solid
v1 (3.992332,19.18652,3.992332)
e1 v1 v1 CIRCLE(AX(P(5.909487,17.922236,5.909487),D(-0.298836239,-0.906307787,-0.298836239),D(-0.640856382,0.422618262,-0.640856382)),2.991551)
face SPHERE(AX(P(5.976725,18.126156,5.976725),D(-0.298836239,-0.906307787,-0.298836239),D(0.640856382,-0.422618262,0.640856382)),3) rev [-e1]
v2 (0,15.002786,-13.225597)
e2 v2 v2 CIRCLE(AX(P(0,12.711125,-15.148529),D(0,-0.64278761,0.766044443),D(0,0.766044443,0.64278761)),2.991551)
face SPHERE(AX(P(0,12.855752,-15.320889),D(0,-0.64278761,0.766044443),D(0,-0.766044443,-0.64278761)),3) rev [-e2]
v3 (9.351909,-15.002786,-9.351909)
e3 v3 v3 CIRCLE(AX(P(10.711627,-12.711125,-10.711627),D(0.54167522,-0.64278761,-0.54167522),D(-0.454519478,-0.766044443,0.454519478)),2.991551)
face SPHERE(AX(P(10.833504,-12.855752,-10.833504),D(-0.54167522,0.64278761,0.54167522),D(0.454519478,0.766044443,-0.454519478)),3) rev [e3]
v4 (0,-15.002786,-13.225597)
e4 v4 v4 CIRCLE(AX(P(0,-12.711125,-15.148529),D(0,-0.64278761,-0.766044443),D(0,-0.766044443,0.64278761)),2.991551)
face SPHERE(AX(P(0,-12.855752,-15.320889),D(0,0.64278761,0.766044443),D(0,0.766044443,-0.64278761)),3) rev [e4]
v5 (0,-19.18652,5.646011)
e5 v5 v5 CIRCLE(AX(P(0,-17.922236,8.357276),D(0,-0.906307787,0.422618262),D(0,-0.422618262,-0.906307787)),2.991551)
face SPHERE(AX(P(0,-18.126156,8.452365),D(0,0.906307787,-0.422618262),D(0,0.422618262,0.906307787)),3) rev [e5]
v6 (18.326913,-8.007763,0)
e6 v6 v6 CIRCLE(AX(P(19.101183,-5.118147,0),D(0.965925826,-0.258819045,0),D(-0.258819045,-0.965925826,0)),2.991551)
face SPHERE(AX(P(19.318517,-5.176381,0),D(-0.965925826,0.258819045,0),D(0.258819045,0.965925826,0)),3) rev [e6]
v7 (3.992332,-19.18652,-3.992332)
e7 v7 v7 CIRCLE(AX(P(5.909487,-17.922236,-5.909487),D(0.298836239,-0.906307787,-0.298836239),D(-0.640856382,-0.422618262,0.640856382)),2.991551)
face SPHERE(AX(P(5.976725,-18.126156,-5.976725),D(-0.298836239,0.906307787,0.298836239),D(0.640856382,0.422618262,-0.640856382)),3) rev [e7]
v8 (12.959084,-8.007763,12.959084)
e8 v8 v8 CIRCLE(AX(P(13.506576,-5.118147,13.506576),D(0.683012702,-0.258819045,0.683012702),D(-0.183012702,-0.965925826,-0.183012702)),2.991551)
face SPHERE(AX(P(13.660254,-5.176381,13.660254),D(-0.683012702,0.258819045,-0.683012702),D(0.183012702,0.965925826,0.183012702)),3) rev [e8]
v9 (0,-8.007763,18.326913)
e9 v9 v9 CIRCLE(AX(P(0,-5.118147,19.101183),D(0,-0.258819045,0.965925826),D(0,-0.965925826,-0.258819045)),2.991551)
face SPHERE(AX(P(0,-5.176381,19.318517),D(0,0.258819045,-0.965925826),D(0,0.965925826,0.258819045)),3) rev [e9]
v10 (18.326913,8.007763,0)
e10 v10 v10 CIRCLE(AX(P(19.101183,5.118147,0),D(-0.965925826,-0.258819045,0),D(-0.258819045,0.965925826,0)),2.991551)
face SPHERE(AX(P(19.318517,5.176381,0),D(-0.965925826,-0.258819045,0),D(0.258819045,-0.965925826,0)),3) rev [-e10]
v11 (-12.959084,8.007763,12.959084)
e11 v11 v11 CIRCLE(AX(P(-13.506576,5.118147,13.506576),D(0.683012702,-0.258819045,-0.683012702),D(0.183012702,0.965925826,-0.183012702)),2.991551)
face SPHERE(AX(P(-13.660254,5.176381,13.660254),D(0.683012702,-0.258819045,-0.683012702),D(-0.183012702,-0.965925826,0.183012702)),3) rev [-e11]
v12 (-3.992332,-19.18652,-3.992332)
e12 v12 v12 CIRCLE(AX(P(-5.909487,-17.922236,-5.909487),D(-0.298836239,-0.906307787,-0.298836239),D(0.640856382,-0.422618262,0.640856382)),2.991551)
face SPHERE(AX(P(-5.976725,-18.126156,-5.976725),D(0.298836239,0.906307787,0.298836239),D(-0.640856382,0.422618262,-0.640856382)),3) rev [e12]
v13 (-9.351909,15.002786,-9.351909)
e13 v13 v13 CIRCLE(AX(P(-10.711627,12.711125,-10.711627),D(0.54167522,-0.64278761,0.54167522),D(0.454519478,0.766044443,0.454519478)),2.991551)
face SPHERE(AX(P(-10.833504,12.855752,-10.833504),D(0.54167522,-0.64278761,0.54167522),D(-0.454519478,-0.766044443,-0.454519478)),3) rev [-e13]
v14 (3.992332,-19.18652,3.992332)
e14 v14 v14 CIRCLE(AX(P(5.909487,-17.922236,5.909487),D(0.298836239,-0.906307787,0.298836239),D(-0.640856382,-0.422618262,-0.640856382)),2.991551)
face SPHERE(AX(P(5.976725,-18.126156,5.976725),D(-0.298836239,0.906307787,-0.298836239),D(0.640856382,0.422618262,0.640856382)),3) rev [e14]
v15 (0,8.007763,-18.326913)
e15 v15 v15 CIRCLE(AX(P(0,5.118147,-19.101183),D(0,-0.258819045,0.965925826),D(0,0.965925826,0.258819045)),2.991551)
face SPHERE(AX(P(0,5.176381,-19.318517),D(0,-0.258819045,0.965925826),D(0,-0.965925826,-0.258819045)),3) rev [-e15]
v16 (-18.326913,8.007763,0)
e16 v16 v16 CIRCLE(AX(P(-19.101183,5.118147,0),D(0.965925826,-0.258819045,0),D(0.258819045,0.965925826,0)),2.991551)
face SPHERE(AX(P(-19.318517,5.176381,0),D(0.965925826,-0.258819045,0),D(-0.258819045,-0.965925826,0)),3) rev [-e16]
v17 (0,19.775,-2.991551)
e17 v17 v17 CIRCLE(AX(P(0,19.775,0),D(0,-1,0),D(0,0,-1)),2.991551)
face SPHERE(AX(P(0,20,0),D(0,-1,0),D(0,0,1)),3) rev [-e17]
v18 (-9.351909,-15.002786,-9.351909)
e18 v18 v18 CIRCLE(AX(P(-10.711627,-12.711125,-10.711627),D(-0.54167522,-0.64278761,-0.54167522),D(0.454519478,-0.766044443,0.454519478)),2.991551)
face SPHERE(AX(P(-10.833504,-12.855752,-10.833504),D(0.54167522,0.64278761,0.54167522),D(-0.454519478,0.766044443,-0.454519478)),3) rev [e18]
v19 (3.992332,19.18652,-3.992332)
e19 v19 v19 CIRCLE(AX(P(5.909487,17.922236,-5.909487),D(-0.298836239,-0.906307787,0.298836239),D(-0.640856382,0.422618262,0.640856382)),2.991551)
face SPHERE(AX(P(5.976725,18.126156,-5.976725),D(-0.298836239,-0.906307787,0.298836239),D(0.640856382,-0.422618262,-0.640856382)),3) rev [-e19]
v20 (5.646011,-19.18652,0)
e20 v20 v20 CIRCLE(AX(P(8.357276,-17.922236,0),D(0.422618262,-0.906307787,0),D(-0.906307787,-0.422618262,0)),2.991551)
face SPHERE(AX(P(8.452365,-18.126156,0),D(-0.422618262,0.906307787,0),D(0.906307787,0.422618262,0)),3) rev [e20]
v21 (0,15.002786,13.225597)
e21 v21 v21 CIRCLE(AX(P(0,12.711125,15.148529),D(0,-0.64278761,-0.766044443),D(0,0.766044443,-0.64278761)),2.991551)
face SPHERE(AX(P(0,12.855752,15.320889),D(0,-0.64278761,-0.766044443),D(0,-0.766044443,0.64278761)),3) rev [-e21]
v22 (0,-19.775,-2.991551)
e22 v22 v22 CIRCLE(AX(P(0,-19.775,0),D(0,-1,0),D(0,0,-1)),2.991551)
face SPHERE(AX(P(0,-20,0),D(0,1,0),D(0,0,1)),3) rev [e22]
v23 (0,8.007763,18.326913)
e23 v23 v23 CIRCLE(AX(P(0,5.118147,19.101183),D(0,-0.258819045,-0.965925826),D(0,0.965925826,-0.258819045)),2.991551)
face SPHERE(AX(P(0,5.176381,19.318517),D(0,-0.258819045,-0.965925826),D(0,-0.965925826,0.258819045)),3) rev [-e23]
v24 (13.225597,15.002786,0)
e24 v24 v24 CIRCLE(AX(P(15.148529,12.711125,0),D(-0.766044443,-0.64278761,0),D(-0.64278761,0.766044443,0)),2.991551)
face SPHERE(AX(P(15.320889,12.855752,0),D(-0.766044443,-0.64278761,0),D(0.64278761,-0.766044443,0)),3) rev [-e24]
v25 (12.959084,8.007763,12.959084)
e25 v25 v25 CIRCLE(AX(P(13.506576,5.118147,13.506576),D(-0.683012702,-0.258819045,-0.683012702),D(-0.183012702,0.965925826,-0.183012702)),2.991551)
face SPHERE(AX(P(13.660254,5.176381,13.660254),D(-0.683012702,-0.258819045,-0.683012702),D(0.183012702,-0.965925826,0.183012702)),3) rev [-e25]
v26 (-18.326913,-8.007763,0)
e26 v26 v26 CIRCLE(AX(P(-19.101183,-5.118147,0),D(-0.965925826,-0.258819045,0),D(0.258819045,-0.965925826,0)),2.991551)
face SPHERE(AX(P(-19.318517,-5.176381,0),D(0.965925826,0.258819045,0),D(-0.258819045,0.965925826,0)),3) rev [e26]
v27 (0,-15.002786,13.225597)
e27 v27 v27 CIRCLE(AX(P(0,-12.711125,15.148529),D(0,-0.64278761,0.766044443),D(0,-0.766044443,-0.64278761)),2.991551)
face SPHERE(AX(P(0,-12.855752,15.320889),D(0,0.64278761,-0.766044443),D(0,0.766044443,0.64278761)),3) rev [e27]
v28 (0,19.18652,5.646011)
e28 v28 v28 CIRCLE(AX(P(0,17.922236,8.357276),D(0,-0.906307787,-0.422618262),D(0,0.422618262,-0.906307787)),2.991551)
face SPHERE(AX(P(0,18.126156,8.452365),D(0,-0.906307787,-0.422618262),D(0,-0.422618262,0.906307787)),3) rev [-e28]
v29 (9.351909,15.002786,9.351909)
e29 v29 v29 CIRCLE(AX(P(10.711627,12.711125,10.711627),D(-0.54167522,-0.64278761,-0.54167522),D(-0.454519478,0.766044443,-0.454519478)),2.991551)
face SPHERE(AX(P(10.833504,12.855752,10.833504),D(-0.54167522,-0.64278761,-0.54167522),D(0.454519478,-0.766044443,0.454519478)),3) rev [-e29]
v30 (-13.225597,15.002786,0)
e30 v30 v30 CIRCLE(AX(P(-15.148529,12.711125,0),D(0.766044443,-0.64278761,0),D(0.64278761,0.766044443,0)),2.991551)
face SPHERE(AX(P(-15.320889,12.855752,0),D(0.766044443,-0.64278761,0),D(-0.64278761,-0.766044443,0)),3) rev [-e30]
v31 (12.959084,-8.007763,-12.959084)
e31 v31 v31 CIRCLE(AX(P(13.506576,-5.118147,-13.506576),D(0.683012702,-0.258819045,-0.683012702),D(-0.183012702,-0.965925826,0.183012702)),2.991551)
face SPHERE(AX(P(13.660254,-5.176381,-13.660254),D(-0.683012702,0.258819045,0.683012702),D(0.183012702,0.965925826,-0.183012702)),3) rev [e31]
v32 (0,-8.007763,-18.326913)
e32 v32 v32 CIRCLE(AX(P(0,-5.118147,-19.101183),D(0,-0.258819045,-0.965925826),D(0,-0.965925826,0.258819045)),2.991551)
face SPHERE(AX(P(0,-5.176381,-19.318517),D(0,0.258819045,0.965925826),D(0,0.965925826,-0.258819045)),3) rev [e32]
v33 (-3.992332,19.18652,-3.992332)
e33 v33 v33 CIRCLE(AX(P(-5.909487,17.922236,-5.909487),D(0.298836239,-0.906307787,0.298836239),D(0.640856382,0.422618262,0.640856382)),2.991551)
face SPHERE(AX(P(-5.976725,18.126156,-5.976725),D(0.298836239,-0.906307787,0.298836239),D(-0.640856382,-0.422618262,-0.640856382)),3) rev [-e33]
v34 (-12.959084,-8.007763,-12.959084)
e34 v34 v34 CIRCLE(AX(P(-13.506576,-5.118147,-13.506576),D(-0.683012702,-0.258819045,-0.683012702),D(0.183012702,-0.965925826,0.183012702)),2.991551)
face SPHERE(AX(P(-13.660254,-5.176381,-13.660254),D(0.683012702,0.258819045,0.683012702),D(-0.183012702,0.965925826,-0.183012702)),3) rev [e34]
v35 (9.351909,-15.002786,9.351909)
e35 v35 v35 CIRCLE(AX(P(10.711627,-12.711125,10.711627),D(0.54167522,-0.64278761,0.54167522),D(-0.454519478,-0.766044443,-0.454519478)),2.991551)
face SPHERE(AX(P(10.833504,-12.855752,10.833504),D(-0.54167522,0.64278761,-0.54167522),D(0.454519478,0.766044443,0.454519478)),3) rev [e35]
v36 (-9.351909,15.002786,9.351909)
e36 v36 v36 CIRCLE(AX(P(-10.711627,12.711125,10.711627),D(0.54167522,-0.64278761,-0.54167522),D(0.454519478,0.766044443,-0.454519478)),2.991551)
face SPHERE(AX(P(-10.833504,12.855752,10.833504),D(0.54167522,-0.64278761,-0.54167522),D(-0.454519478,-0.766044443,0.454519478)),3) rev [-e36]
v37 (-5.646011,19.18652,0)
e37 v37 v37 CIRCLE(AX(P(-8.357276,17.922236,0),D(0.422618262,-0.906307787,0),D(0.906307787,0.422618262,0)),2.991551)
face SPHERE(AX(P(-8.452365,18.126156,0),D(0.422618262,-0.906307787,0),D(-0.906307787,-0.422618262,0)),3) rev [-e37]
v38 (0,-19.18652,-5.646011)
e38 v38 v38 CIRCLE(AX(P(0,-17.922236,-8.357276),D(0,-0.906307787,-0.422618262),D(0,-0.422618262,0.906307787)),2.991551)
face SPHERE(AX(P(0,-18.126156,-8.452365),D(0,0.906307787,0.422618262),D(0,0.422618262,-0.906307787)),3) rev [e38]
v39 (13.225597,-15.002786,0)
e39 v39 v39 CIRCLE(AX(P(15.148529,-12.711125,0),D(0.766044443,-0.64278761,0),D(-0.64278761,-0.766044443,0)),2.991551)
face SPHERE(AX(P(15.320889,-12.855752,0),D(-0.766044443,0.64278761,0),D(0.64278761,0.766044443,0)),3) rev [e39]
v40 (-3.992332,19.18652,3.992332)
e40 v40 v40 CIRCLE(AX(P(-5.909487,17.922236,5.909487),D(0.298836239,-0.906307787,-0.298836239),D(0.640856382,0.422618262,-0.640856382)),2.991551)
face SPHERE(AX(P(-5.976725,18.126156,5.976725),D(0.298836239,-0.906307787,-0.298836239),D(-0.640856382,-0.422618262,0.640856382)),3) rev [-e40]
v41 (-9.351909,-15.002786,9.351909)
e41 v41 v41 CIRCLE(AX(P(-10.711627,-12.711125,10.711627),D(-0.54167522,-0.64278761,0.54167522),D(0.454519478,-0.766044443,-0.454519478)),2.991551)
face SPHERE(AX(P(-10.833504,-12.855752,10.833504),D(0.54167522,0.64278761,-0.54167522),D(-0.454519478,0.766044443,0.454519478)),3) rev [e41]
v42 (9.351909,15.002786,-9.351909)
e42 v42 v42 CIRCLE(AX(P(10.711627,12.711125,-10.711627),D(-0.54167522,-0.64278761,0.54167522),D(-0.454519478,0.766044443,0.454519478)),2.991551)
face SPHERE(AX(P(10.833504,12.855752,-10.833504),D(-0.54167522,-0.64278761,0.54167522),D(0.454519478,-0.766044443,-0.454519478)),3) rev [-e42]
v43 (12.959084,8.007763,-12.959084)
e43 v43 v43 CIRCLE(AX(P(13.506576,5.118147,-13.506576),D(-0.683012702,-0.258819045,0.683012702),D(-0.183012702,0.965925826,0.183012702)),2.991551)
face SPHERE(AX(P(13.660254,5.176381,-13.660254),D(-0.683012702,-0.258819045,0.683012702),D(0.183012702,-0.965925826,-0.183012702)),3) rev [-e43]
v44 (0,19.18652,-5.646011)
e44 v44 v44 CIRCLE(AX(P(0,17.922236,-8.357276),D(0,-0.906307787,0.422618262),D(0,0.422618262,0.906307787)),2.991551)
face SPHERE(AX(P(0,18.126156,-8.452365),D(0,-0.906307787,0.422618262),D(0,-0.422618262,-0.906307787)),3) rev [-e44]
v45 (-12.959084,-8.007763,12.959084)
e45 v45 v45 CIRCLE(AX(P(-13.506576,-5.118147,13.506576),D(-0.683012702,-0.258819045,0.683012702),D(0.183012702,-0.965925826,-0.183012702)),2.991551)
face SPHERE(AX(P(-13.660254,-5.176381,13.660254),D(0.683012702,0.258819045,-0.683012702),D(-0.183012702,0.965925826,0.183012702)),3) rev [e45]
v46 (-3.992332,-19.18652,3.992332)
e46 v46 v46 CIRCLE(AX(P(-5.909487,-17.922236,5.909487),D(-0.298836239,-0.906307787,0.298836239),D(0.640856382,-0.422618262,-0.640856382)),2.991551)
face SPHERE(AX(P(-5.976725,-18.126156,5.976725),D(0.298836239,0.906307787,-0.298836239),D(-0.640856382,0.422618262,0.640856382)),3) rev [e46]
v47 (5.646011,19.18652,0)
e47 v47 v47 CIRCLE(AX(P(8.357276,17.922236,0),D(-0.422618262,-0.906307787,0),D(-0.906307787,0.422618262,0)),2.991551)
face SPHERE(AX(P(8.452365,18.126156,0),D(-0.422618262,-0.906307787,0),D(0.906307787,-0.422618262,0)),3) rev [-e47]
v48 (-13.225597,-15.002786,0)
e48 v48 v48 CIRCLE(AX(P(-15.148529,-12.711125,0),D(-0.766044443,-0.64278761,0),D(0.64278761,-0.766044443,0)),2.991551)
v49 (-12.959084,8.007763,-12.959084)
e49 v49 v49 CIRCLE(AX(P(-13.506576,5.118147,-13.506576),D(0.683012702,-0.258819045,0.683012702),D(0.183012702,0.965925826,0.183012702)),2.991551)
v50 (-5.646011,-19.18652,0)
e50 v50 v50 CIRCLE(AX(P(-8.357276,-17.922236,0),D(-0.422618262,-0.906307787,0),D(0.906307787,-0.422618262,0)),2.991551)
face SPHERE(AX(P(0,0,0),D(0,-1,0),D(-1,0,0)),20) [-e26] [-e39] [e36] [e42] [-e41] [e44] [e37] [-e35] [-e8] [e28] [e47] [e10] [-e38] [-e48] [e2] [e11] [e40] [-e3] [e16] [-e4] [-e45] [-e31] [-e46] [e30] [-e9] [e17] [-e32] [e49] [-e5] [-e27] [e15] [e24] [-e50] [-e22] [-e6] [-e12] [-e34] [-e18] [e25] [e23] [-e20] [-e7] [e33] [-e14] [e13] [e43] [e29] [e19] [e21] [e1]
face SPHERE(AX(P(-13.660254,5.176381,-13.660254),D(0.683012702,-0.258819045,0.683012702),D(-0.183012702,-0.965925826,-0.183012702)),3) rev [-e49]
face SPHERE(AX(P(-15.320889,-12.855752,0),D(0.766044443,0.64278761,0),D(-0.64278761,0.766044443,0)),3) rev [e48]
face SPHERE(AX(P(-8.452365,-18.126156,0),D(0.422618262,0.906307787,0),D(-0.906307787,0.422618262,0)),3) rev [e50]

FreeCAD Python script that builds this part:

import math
import FreeCAD as App
import Part
import Sketcher

V = App.Vector
Q = App.Units.Quantity

doc = App.newDocument("Part")
body = doc.addObject("PartDesign::Body", "Body")

# Sketch on XY plane
sketch1 = body.newObject("Sketcher::SketchObject", "Sketch")
sketch1.AttachmentSupport = (doc.getObject("XY_Plane"), [""])
sketch1.MapMode = "FlatFace"
sketch1.addGeometry(Part.ArcOfCircle(Part.Circle(V(0, 0, 0), V(0, 0, 1), 20), math.radians(0), math.radians(90)), False)
sketch1.addGeometry(Part.LineSegment(V(0, 20, 0), V(0, 0, 0)), False)
sketch1.addGeometry(Part.LineSegment(V(0, 0, 0), V(20, 0, 0)), False)
sketch1.addConstraint(Sketcher.Constraint("Coincident", 0, 2, 1, 1))
sketch1.addConstraint(Sketcher.Constraint("Coincident", 1, 2, 2, 1))
sketch1.addConstraint(Sketcher.Constraint("Coincident", 2, 2, 0, 1))
sketch1.addConstraint(Sketcher.Constraint("Vertical", 1))
sketch1.addConstraint(Sketcher.Constraint("Horizontal", 2))
sketch1.addConstraint(Sketcher.Constraint("Coincident", 0, 3, -1, 1))
sketch1.addConstraint(Sketcher.Constraint("Coincident", 1, 2, -1, 1))
sketch1.addConstraint(Sketcher.Constraint("Radius", 0, Q("20 mm")))
revolution = body.newObject("PartDesign::Revolution", "Revolution")
revolution.Profile = sketch1
revolution.ReferenceAxis = (sketch1, ["V_Axis"])
revolution.Angle = 360

# Sketch on YZ plane
sketch2 = body.newObject("Sketcher::SketchObject", "Sketch001")
sketch2.AttachmentSupport = (doc.getObject("YZ_Plane"), [""])
sketch2.MapMode = "FlatFace"
sketch2.addGeometry(Part.LineSegment(V(17, 0, 0), V(20, 0, 0)), False)
sketch2.addGeometry(Part.ArcOfCircle(Part.Circle(V(0, 0, 0), V(0, 0, 1), 20), math.radians(0), math.radians(8.6)), False)
sketch2.addGeometry(Part.ArcOfCircle(Part.Circle(V(20, 0, 0), V(0, 0, 1), 3), math.radians(94), math.radians(180)), False)
sketch2.addConstraint(Sketcher.Constraint("Coincident", 0, 2, 1, 1))
sketch2.addConstraint(Sketcher.Constraint("Coincident", 1, 2, 2, 1))
sketch2.addConstraint(Sketcher.Constraint("Coincident", 2, 2, 0, 1))
sketch2.addConstraint(Sketcher.Constraint("Horizontal", 0))
sketch2.addConstraint(Sketcher.Constraint("Coincident", 1, 3, -1, 1))
sketch2.addConstraint(Sketcher.Constraint("Coincident", 0, 2, 2, 3))
sketch2.addConstraint(Sketcher.Constraint("PointOnObject", 2, 3, -1))
sketch2.addConstraint(Sketcher.Constraint("Radius", 1, Q("20 mm")))
sketch2.addConstraint(Sketcher.Constraint("Radius", 2, Q("3 mm")))
groove = body.newObject("PartDesign::Groove", "Groove")
groove.Profile = sketch2
groove.ReferenceAxis = (sketch2, ["H_Axis"])
groove.Angle = 360
doc.recompute()

polarpattern = body.newObject("PartDesign::PolarPattern", "PolarPattern")
polarpattern.Originals = [groove]
polarpattern.Axis = (doc.getObject("X_Axis"), [""])
polarpattern.Angle = 75
polarpattern.Occurrences = 4
body.Tip = polarpattern

# Sketch on an angled plane
sketch3 = body.newObject("Sketcher::SketchObject", "Sketch002")
sketch3.Placement = App.Placement(V(0, 0, 0), App.Rotation(V(-0.640856382, 0.422618262, -0.640856382), V(0.298836239, 0.906307787, 0.298836239), V(0.707106781, 0, -0.707106781), "ZXY"))
sketch3.addGeometry(Part.LineSegment(V(0, 17, 0), V(0, 20, 0)), False)
sketch3.addGeometry(Part.ArcOfCircle(Part.Circle(V(0, 0, 0), V(0, 0, 1), 20), math.radians(90), math.radians(98.6)), False)
sketch3.addGeometry(Part.ArcOfCircle(Part.Circle(V(0, 20, 0), V(0, 0, 1), 3), math.radians(-176), math.radians(-90)), False)
sketch3.addConstraint(Sketcher.Constraint("Coincident", 0, 2, 1, 1))
sketch3.addConstraint(Sketcher.Constraint("Coincident", 1, 2, 2, 1))
sketch3.addConstraint(Sketcher.Constraint("Coincident", 2, 2, 0, 1))
sketch3.addConstraint(Sketcher.Constraint("Vertical", 0))
sketch3.addConstraint(Sketcher.Constraint("Coincident", 1, 3, -1, 1))
sketch3.addConstraint(Sketcher.Constraint("Coincident", 0, 2, 2, 3))
sketch3.addConstraint(Sketcher.Constraint("PointOnObject", 2, 3, -2))
sketch3.addConstraint(Sketcher.Constraint("Radius", 1, Q("20 mm")))
sketch3.addConstraint(Sketcher.Constraint("Radius", 2, Q("3 mm")))
groove2 = body.newObject("PartDesign::Groove", "Groove001")
groove2.Profile = sketch3
groove2.ReferenceAxis = (sketch3, ["V_Axis"])
groove2.Angle = 360

# Sketch on XY plane
sketch4 = body.newObject("Sketcher::SketchObject", "Sketch003")
sketch4.AttachmentSupport = (doc.getObject("XY_Plane"), [""])
sketch4.MapMode = "FlatFace"
sketch4.addGeometry(Part.LineSegment(V(7.2, 15.4, 0), V(8.5, 18.1, 0)), False)
sketch4.addGeometry(Part.ArcOfCircle(Part.Circle(V(0, 0, 0), V(0, 0, 1), 20), math.radians(56.4), math.radians(65)), False)
sketch4.addGeometry(Part.ArcOfCircle(Part.Circle(V(8.5, 18.1, 0), V(0, 0, 1), 3), math.radians(-115), math.radians(-29)), False)
sketch4.addGeometry(Part.LineSegment(V(0, 0, 0), V(8.5, 18.1, 0)), True)  # axis
sketch4.addConstraint(Sketcher.Constraint("Coincident", 0, 2, 1, 2))
sketch4.addConstraint(Sketcher.Constraint("Coincident", 1, 1, 2, 2))
sketch4.addConstraint(Sketcher.Constraint("Coincident", 2, 1, 0, 1))
sketch4.addConstraint(Sketcher.Constraint("Coincident", 1, 3, -1, 1))
sketch4.addConstraint(Sketcher.Constraint("Coincident", 3, 1, -1, 1))
sketch4.addConstraint(Sketcher.Constraint("Coincident", 0, 2, 2, 3))
sketch4.addConstraint(Sketcher.Constraint("Coincident", 3, 2, 2, 3))
sketch4.addConstraint(Sketcher.Constraint("Parallel", 0, 3))
sketch4.addConstraint(Sketcher.Constraint("Radius", 1, Q("20 mm")))
sketch4.addConstraint(Sketcher.Constraint("Radius", 2, Q("3 mm")))
sketch4.addConstraint(Sketcher.Constraint("Angle", 0, Q("65 deg")))
groove3 = body.newObject("PartDesign::Groove", "Groove002")
groove3.Profile = sketch4
groove3.ReferenceAxis = (sketch4, ["Axis0"])
groove3.Angle = 360

# Sketch on an angled plane
sketch5 = body.newObject("Sketcher::SketchObject", "Sketch004")
sketch5.Placement = App.Placement(V(0, 0, 0), App.Rotation(V(-0.640856382, 0.422618262, 0.640856382), V(0.298836239, 0.906307787, -0.298836239), V(-0.707106781, 0, -0.707106781), "ZXY"))
sketch5.addGeometry(Part.LineSegment(V(0, 17, 0), V(0, 20, 0)), False)
sketch5.addGeometry(Part.ArcOfCircle(Part.Circle(V(0, 0, 0), V(0, 0, 1), 20), math.radians(90), math.radians(98.6)), False)
sketch5.addGeometry(Part.ArcOfCircle(Part.Circle(V(0, 20, 0), V(0, 0, 1), 3), math.radians(-176), math.radians(-90)), False)
sketch5.addConstraint(Sketcher.Constraint("Coincident", 0, 2, 1, 1))
sketch5.addConstraint(Sketcher.Constraint("Coincident", 1, 2, 2, 1))
sketch5.addConstraint(Sketcher.Constraint("Coincident", 2, 2, 0, 1))
sketch5.addConstraint(Sketcher.Constraint("Vertical", 0))
sketch5.addConstraint(Sketcher.Constraint("Coincident", 1, 3, -1, 1))
sketch5.addConstraint(Sketcher.Constraint("Coincident", 0, 2, 2, 3))
sketch5.addConstraint(Sketcher.Constraint("PointOnObject", 2, 3, -2))
sketch5.addConstraint(Sketcher.Constraint("Radius", 1, Q("20 mm")))
sketch5.addConstraint(Sketcher.Constraint("Radius", 2, Q("3 mm")))
groove4 = body.newObject("PartDesign::Groove", "Groove003")
groove4.Profile = sketch5
groove4.ReferenceAxis = (sketch5, ["V_Axis"])
groove4.Angle = 360

# Sketch on YZ plane
sketch6 = body.newObject("Sketcher::SketchObject", "Sketch005")
sketch6.AttachmentSupport = (doc.getObject("YZ_Plane"), [""])
sketch6.MapMode = "FlatFace"
sketch6.addGeometry(Part.LineSegment(V(15.4, -7.2, 0), V(18.1, -8.5, 0)), False)
sketch6.addGeometry(Part.ArcOfCircle(Part.Circle(V(0, 0, 0), V(0, 0, 1), 20), math.radians(-33.6), math.radians(-25)), False)
sketch6.addGeometry(Part.ArcOfCircle(Part.Circle(V(18.1, -8.5, 0), V(0, 0, 1), 3), math.radians(155), math.radians(241)), False)
sketch6.addGeometry(Part.LineSegment(V(0, 0, 0), V(18.1, -8.5, 0)), True)  # axis
sketch6.addConstraint(Sketcher.Constraint("Coincident", 0, 2, 1, 2))
sketch6.addConstraint(Sketcher.Constraint("Coincident", 1, 1, 2, 2))
sketch6.addConstraint(Sketcher.Constraint("Coincident", 2, 1, 0, 1))
sketch6.addConstraint(Sketcher.Constraint("Coincident", 1, 3, -1, 1))
sketch6.addConstraint(Sketcher.Constraint("Coincident", 3, 1, -1, 1))
sketch6.addConstraint(Sketcher.Constraint("Coincident", 0, 2, 2, 3))
sketch6.addConstraint(Sketcher.Constraint("Coincident", 3, 2, 2, 3))
sketch6.addConstraint(Sketcher.Constraint("Parallel", 0, 3))
sketch6.addConstraint(Sketcher.Constraint("Radius", 1, Q("20 mm")))
sketch6.addConstraint(Sketcher.Constraint("Radius", 2, Q("3 mm")))
sketch6.addConstraint(Sketcher.Constraint("Angle", 0, Q("-25 deg")))
groove5 = body.newObject("PartDesign::Groove", "Groove004")
groove5.Profile = sketch6
groove5.ReferenceAxis = (sketch6, ["Axis0"])
groove5.Angle = 360

# Sketch on an angled plane
sketch7 = body.newObject("Sketcher::SketchObject", "Sketch006")
sketch7.Placement = App.Placement(V(0, 0, 0), App.Rotation(V(0.640856382, 0.422618262, 0.640856382), V(-0.298836239, 0.906307787, -0.298836239), V(-0.707106781, 0, 0.707106781), "ZXY"))
sketch7.addGeometry(Part.LineSegment(V(0, 17, 0), V(0, 20, 0)), False)
sketch7.addGeometry(Part.ArcOfCircle(Part.Circle(V(0, 0, 0), V(0, 0, 1), 20), math.radians(90), math.radians(98.6)), False)
sketch7.addGeometry(Part.ArcOfCircle(Part.Circle(V(0, 20, 0), V(0, 0, 1), 3), math.radians(-176), math.radians(-90)), False)
sketch7.addConstraint(Sketcher.Constraint("Coincident", 0, 2, 1, 1))
sketch7.addConstraint(Sketcher.Constraint("Coincident", 1, 2, 2, 1))
sketch7.addConstraint(Sketcher.Constraint("Coincident", 2, 2, 0, 1))
sketch7.addConstraint(Sketcher.Constraint("Vertical", 0))
sketch7.addConstraint(Sketcher.Constraint("Coincident", 1, 3, -1, 1))
sketch7.addConstraint(Sketcher.Constraint("Coincident", 0, 2, 2, 3))
sketch7.addConstraint(Sketcher.Constraint("PointOnObject", 2, 3, -2))
sketch7.addConstraint(Sketcher.Constraint("Radius", 1, Q("20 mm")))
sketch7.addConstraint(Sketcher.Constraint("Radius", 2, Q("3 mm")))
groove6 = body.newObject("PartDesign::Groove", "Groove005")
groove6.Profile = sketch7
groove6.ReferenceAxis = (sketch7, ["V_Axis"])
groove6.Angle = 360

# Sketch on XY plane
sketch8 = body.newObject("Sketcher::SketchObject", "Sketch007")
sketch8.AttachmentSupport = (doc.getObject("XY_Plane"), [""])
sketch8.MapMode = "FlatFace"
sketch8.addGeometry(Part.LineSegment(V(-7.2, 15.4, 0), V(-8.5, 18.1, 0)), False)
sketch8.addGeometry(Part.ArcOfCircle(Part.Circle(V(0, 0, 0), V(0, 0, 1), 20), math.radians(115), math.radians(123.6)), False)
sketch8.addGeometry(Part.ArcOfCircle(Part.Circle(V(-8.5, 18.1, 0), V(0, 0, 1), 3), math.radians(-151), math.radians(-65)), False)
sketch8.addGeometry(Part.LineSegment(V(0, 0, 0), V(-8.5, 18.1, 0)), True)  # axis
sketch8.addConstraint(Sketcher.Constraint("Coincident", 0, 2, 1, 1))
sketch8.addConstraint(Sketcher.Constraint("Coincident", 1, 2, 2, 1))
sketch8.addConstraint(Sketcher.Constraint("Coincident", 2, 2, 0, 1))
sketch8.addConstraint(Sketcher.Constraint("Coincident", 1, 3, -1, 1))
sketch8.addConstraint(Sketcher.Constraint("Coincident", 3, 1, -1, 1))
sketch8.addConstraint(Sketcher.Constraint("Coincident", 0, 2, 2, 3))
sketch8.addConstraint(Sketcher.Constraint("Coincident", 3, 2, 2, 3))
sketch8.addConstraint(Sketcher.Constraint("Parallel", 0, 3))
sketch8.addConstraint(Sketcher.Constraint("Radius", 1, Q("20 mm")))
sketch8.addConstraint(Sketcher.Constraint("Radius", 2, Q("3 mm")))
sketch8.addConstraint(Sketcher.Constraint("Angle", 0, Q("115 deg")))
groove7 = body.newObject("PartDesign::Groove", "Groove006")
groove7.Profile = sketch8
groove7.ReferenceAxis = (sketch8, ["Axis0"])
groove7.Angle = 360

# Sketch on an angled plane
sketch9 = body.newObject("Sketcher::SketchObject", "Sketch008")
sketch9.Placement = App.Placement(V(0, 0, 0), App.Rotation(V(0.640856382, 0.422618262, -0.640856382), V(-0.298836239, 0.906307787, 0.298836239), V(0.707106781, 0, 0.707106781), "ZXY"))
sketch9.addGeometry(Part.LineSegment(V(0, 17, 0), V(0, 20, 0)), False)
sketch9.addGeometry(Part.ArcOfCircle(Part.Circle(V(0, 0, 0), V(0, 0, 1), 20), math.radians(90), math.radians(98.6)), False)
sketch9.addGeometry(Part.ArcOfCircle(Part.Circle(V(0, 20, 0), V(0, 0, 1), 3), math.radians(-176), math.radians(-90)), False)
sketch9.addConstraint(Sketcher.Constraint("Coincident", 0, 2, 1, 1))
sketch9.addConstraint(Sketcher.Constraint("Coincident", 1, 2, 2, 1))
sketch9.addConstraint(Sketcher.Constraint("Coincident", 2, 2, 0, 1))
sketch9.addConstraint(Sketcher.Constraint("Vertical", 0))
sketch9.addConstraint(Sketcher.Constraint("Coincident", 1, 3, -1, 1))
sketch9.addConstraint(Sketcher.Constraint("Coincident", 0, 2, 2, 3))
sketch9.addConstraint(Sketcher.Constraint("PointOnObject", 2, 3, -2))
sketch9.addConstraint(Sketcher.Constraint("Radius", 1, Q("20 mm")))
sketch9.addConstraint(Sketcher.Constraint("Radius", 2, Q("3 mm")))
groove8 = body.newObject("PartDesign::Groove", "Groove007")
groove8.Profile = sketch9
groove8.ReferenceAxis = (sketch9, ["V_Axis"])
groove8.Angle = 360

# Sketch on an angled plane
sketch10 = body.newObject("Sketcher::SketchObject", "Sketch009")
sketch10.Placement = App.Placement(V(0, 0, 0), App.Rotation(V(-0.454519478, 0.766044443, -0.454519478), V(0.54167522, 0.64278761, 0.54167522), V(0.707106781, 0, -0.707106781), "ZXY"))
sketch10.addGeometry(Part.LineSegment(V(0, 17, 0), V(0, 20, 0)), False)
sketch10.addGeometry(Part.ArcOfCircle(Part.Circle(V(0, 0, 0), V(0, 0, 1), 20), math.radians(90), math.radians(98.6)), False)
sketch10.addGeometry(Part.ArcOfCircle(Part.Circle(V(0, 20, 0), V(0, 0, 1), 3), math.radians(-176), math.radians(-90)), False)
sketch10.addConstraint(Sketcher.Constraint("Coincident", 0, 2, 1, 1))
sketch10.addConstraint(Sketcher.Constraint("Coincident", 1, 2, 2, 1))
sketch10.addConstraint(Sketcher.Constraint("Coincident", 2, 2, 0, 1))
sketch10.addConstraint(Sketcher.Constraint("Vertical", 0))
sketch10.addConstraint(Sketcher.Constraint("Coincident", 1, 3, -1, 1))
sketch10.addConstraint(Sketcher.Constraint("Coincident", 0, 2, 2, 3))
sketch10.addConstraint(Sketcher.Constraint("PointOnObject", 2, 3, -2))
sketch10.addConstraint(Sketcher.Constraint("Radius", 1, Q("20 mm")))
sketch10.addConstraint(Sketcher.Constraint("Radius", 2, Q("3 mm")))
groove9 = body.newObject("PartDesign::Groove", "Groove008")
groove9.Profile = sketch10
groove9.ReferenceAxis = (sketch10, ["V_Axis"])
groove9.Angle = 360

# Sketch on XY plane
sketch11 = body.newObject("Sketcher::SketchObject", "Sketch010")
sketch11.AttachmentSupport = (doc.getObject("XY_Plane"), [""])
sketch11.MapMode = "FlatFace"
sketch11.addGeometry(Part.LineSegment(V(13, 10.9, 0), V(15.3, 12.9, 0)), False)
sketch11.addGeometry(Part.ArcOfCircle(Part.Circle(V(0, 0, 0), V(0, 0, 1), 20), math.radians(31.4), math.radians(40)), False)
sketch11.addGeometry(Part.ArcOfCircle(Part.Circle(V(15.3, 12.9, 0), V(0, 0, 1), 3), math.radians(-140), math.radians(-54)), False)
sketch11.addGeometry(Part.LineSegment(V(0, 0, 0), V(15.3, 12.9, 0)), True)  # axis
sketch11.addConstraint(Sketcher.Constraint("Coincident", 0, 2, 1, 2))
sketch11.addConstraint(Sketcher.Constraint("Coincident", 1, 1, 2, 2))
sketch11.addConstraint(Sketcher.Constraint("Coincident", 2, 1, 0, 1))
sketch11.addConstraint(Sketcher.Constraint("Coincident", 1, 3, -1, 1))
sketch11.addConstraint(Sketcher.Constraint("Coincident", 3, 1, -1, 1))
sketch11.addConstraint(Sketcher.Constraint("Coincident", 0, 2, 2, 3))
sketch11.addConstraint(Sketcher.Constraint("Coincident", 3, 2, 2, 3))
sketch11.addConstraint(Sketcher.Constraint("Parallel", 0, 3))
sketch11.addConstraint(Sketcher.Constraint("Radius", 1, Q("20 mm")))
sketch11.addConstraint(Sketcher.Constraint("Radius", 2, Q("3 mm")))
sketch11.addConstraint(Sketcher.Constraint("Angle", 0, Q("40 deg")))
groove10 = body.newObject("PartDesign::Groove", "Groove009")
groove10.Profile = sketch11
groove10.ReferenceAxis = (sketch11, ["Axis0"])
groove10.Angle = 360

# Sketch on an angled plane
sketch12 = body.newObject("Sketcher::SketchObject", "Sketch011")
sketch12.Placement = App.Placement(V(0, 0, 0), App.Rotation(V(-0.454519478, 0.766044443, 0.454519478), V(0.54167522, 0.64278761, -0.54167522), V(-0.707106781, 0, -0.707106781), "ZXY"))
sketch12.addGeometry(Part.LineSegment(V(0, 17, 0), V(0, 20, 0)), False)
sketch12.addGeometry(Part.ArcOfCircle(Part.Circle(V(0, 0, 0), V(0, 0, 1), 20), math.radians(90), math.radians(98.6)), False)
sketch12.addGeometry(Part.ArcOfCircle(Part.Circle(V(0, 20, 0), V(0, 0, 1), 3), math.radians(-176), math.radians(-90)), False)
sketch12.addConstraint(Sketcher.Constraint("Coincident", 0, 2, 1, 1))
sketch12.addConstraint(Sketcher.Constraint("Coincident", 1, 2, 2, 1))
sketch12.addConstraint(Sketcher.Constraint("Coincident", 2, 2, 0, 1))
sketch12.addConstraint(Sketcher.Constraint("Vertical", 0))
sketch12.addConstraint(Sketcher.Constraint("Coincident", 1, 3, -1, 1))
sketch12.addConstraint(Sketcher.Constraint("Coincident", 0, 2, 2, 3))
sketch12.addConstraint(Sketcher.Constraint("PointOnObject", 2, 3, -2))
sketch12.addConstraint(Sketcher.Constraint("Radius", 1, Q("20 mm")))
sketch12.addConstraint(Sketcher.Constraint("Radius", 2, Q("3 mm")))
groove11 = body.newObject("PartDesign::Groove", "Groove010")
groove11.Profile = sketch12
groove11.ReferenceAxis = (sketch12, ["V_Axis"])
groove11.Angle = 360

# Sketch on YZ plane
sketch13 = body.newObject("Sketcher::SketchObject", "Sketch012")
sketch13.AttachmentSupport = (doc.getObject("YZ_Plane"), [""])
sketch13.MapMode = "FlatFace"
sketch13.addGeometry(Part.LineSegment(V(10.9, -13, 0), V(12.9, -15.3, 0)), False)
sketch13.addGeometry(Part.ArcOfCircle(Part.Circle(V(0, 0, 0), V(0, 0, 1), 20), math.radians(-58.6), math.radians(-50)), False)
sketch13.addGeometry(Part.ArcOfCircle(Part.Circle(V(12.9, -15.3, 0), V(0, 0, 1), 3), math.radians(130), math.radians(216)), False)
sketch13.addGeometry(Part.LineSegment(V(0, 0, 0), V(12.9, -15.3, 0)), True)  # axis
sketch13.addConstraint(Sketcher.Constraint("Coincident", 0, 2, 1, 2))
sketch13.addConstraint(Sketcher.Constraint("Coincident", 1, 1, 2, 2))
sketch13.addConstraint(Sketcher.Constraint("Coincident", 2, 1, 0, 1))
sketch13.addConstraint(Sketcher.Constraint("Coincident", 1, 3, -1, 1))
sketch13.addConstraint(Sketcher.Constraint("Coincident", 3, 1, -1, 1))
sketch13.addConstraint(Sketcher.Constraint("Coincident", 0, 2, 2, 3))
sketch13.addConstraint(Sketcher.Constraint("Coincident", 3, 2, 2, 3))
sketch13.addConstraint(Sketcher.Constraint("Parallel", 0, 3))
sketch13.addConstraint(Sketcher.Constraint("Radius", 1, Q("20 mm")))
sketch13.addConstraint(Sketcher.Constraint("Radius", 2, Q("3 mm")))
sketch13.addConstraint(Sketcher.Constraint("Angle", 0, Q("-50 deg")))
groove12 = body.newObject("PartDesign::Groove", "Groove011")
groove12.Profile = sketch13
groove12.ReferenceAxis = (sketch13, ["Axis0"])
groove12.Angle = 360

# Sketch on an angled plane
sketch14 = body.newObject("Sketcher::SketchObject", "Sketch013")
sketch14.Placement = App.Placement(V(0, 0, 0), App.Rotation(V(0.454519478, 0.766044443, 0.454519478), V(-0.54167522, 0.64278761, -0.54167522), V(-0.707106781, 0, 0.707106781), "ZXY"))
sketch14.addGeometry(Part.LineSegment(V(0, 17, 0), V(0, 20, 0)), False)
sketch14.addGeometry(Part.ArcOfCircle(Part.Circle(V(0, 0, 0), V(0, 0, 1), 20), math.radians(90), math.radians(98.6)), False)
sketch14.addGeometry(Part.ArcOfCircle(Part.Circle(V(0, 20, 0), V(0, 0, 1), 3), math.radians(-176), math.radians(-90)), False)
sketch14.addConstraint(Sketcher.Constraint("Coincident", 0, 2, 1, 1))
sketch14.addConstraint(Sketcher.Constraint("Coincident", 1, 2, 2, 1))
sketch14.addConstraint(Sketcher.Constraint("Coincident", 2, 2, 0, 1))
sketch14.addConstraint(Sketcher.Constraint("Vertical", 0))
sketch14.addConstraint(Sketcher.Constraint("Coincident", 1, 3, -1, 1))
sketch14.addConstraint(Sketcher.Constraint("Coincident", 0, 2, 2, 3))
sketch14.addConstraint(Sketcher.Constraint("PointOnObject", 2, 3, -2))
sketch14.addConstraint(Sketcher.Constraint("Radius", 1, Q("20 mm")))
sketch14.addConstraint(Sketcher.Constraint("Radius", 2, Q("3 mm")))
groove13 = body.newObject("PartDesign::Groove", "Groove012")
groove13.Profile = sketch14
groove13.ReferenceAxis = (sketch14, ["V_Axis"])
groove13.Angle = 360

# Sketch on XY plane
sketch15 = body.newObject("Sketcher::SketchObject", "Sketch014")
sketch15.AttachmentSupport = (doc.getObject("XY_Plane"), [""])
sketch15.MapMode = "FlatFace"
sketch15.addGeometry(Part.LineSegment(V(-13, 10.9, 0), V(-15.3, 12.9, 0)), False)
sketch15.addGeometry(Part.ArcOfCircle(Part.Circle(V(0, 0, 0), V(0, 0, 1), 20), math.radians(140), math.radians(148.6)), False)
sketch15.addGeometry(Part.ArcOfCircle(Part.Circle(V(-15.3, 12.9, 0), V(0, 0, 1), 3), math.radians(-126), math.radians(-40)), False)
sketch15.addGeometry(Part.LineSegment(V(0, 0, 0), V(-15.3, 12.9, 0)), True)  # axis
sketch15.addConstraint(Sketcher.Constraint("Coincident", 0, 2, 1, 1))
sketch15.addConstraint(Sketcher.Constraint("Coincident", 1, 2, 2, 1))
sketch15.addConstraint(Sketcher.Constraint("Coincident", 2, 2, 0, 1))
sketch15.addConstraint(Sketcher.Constraint("Coincident", 1, 3, -1, 1))
sketch15.addConstraint(Sketcher.Constraint("Coincident", 3, 1, -1, 1))
sketch15.addConstraint(Sketcher.Constraint("Coincident", 0, 2, 2, 3))
sketch15.addConstraint(Sketcher.Constraint("Coincident", 3, 2, 2, 3))
sketch15.addConstraint(Sketcher.Constraint("Parallel", 0, 3))
sketch15.addConstraint(Sketcher.Constraint("Radius", 1, Q("20 mm")))
sketch15.addConstraint(Sketcher.Constraint("Radius", 2, Q("3 mm")))
sketch15.addConstraint(Sketcher.Constraint("Angle", 0, Q("140 deg")))
groove14 = body.newObject("PartDesign::Groove", "Groove013")
groove14.Profile = sketch15
groove14.ReferenceAxis = (sketch15, ["Axis0"])
groove14.Angle = 360

# Sketch on an angled plane
sketch16 = body.newObject("Sketcher::SketchObject", "Sketch015")
sketch16.Placement = App.Placement(V(0, 0, 0), App.Rotation(V(0.454519478, 0.766044443, -0.454519478), V(-0.54167522, 0.64278761, 0.54167522), V(0.707106781, 0, 0.707106781), "ZXY"))
sketch16.addGeometry(Part.LineSegment(V(0, 17, 0), V(0, 20, 0)), False)
sketch16.addGeometry(Part.ArcOfCircle(Part.Circle(V(0, 0, 0), V(0, 0, 1), 20), math.radians(90), math.radians(98.6)), False)
sketch16.addGeometry(Part.ArcOfCircle(Part.Circle(V(0, 20, 0), V(0, 0, 1), 3), math.radians(-176), math.radians(-90)), False)
sketch16.addConstraint(Sketcher.Constraint("Coincident", 0, 2, 1, 1))
sketch16.addConstraint(Sketcher.Constraint("Coincident", 1, 2, 2, 1))
sketch16.addConstraint(Sketcher.Constraint("Coincident", 2, 2, 0, 1))
sketch16.addConstraint(Sketcher.Constraint("Vertical", 0))
sketch16.addConstraint(Sketcher.Constraint("Coincident", 1, 3, -1, 1))
sketch16.addConstraint(Sketcher.Constraint("Coincident", 0, 2, 2, 3))
sketch16.addConstraint(Sketcher.Constraint("PointOnObject", 2, 3, -2))
sketch16.addConstraint(Sketcher.Constraint("Radius", 1, Q("20 mm")))
sketch16.addConstraint(Sketcher.Constraint("Radius", 2, Q("3 mm")))
groove15 = body.newObject("PartDesign::Groove", "Groove014")
groove15.Profile = sketch16
groove15.ReferenceAxis = (sketch16, ["V_Axis"])
groove15.Angle = 360

# Sketch on an angled plane
sketch17 = body.newObject("Sketcher::SketchObject", "Sketch016")
sketch17.Placement = App.Placement(V(0, 0, 0), App.Rotation(V(-0.183012702, 0.965925826, -0.183012702), V(0.683012702, 0.258819045, 0.683012702), V(0.707106781, 0, -0.707106781), "ZXY"))
sketch17.addGeometry(Part.LineSegment(V(0, 17, 0), V(0, 20, 0)), False)
sketch17.addGeometry(Part.ArcOfCircle(Part.Circle(V(0, 0, 0), V(0, 0, 1), 20), math.radians(90), math.radians(98.6)), False)
sketch17.addGeometry(Part.ArcOfCircle(Part.Circle(V(0, 20, 0), V(0, 0, 1), 3), math.radians(-176), math.radians(-90)), False)
sketch17.addConstraint(Sketcher.Constraint("Coincident", 0, 2, 1, 1))
sketch17.addConstraint(Sketcher.Constraint("Coincident", 1, 2, 2, 1))
sketch17.addConstraint(Sketcher.Constraint("Coincident", 2, 2, 0, 1))
sketch17.addConstraint(Sketcher.Constraint("Vertical", 0))
sketch17.addConstraint(Sketcher.Constraint("Coincident", 1, 3, -1, 1))
sketch17.addConstraint(Sketcher.Constraint("Coincident", 0, 2, 2, 3))
sketch17.addConstraint(Sketcher.Constraint("PointOnObject", 2, 3, -2))
sketch17.addConstraint(Sketcher.Constraint("Radius", 1, Q("20 mm")))
sketch17.addConstraint(Sketcher.Constraint("Radius", 2, Q("3 mm")))
groove16 = body.newObject("PartDesign::Groove", "Groove015")
groove16.Profile = sketch17
groove16.ReferenceAxis = (sketch17, ["V_Axis"])
groove16.Angle = 360

# Sketch on XY plane
sketch18 = body.newObject("Sketcher::SketchObject", "Sketch017")
sketch18.AttachmentSupport = (doc.getObject("XY_Plane"), [""])
sketch18.MapMode = "FlatFace"
sketch18.addGeometry(Part.LineSegment(V(16.4, 4.4, 0), V(19.3, 5.2, 0)), False)
sketch18.addGeometry(Part.ArcOfCircle(Part.Circle(V(0, 0, 0), V(0, 0, 1), 20), math.radians(6.4), math.radians(15)), False)
sketch18.addGeometry(Part.ArcOfCircle(Part.Circle(V(19.3, 5.2, 0), V(0, 0, 1), 3), math.radians(-165), math.radians(-79)), False)
sketch18.addGeometry(Part.LineSegment(V(0, 0, 0), V(19.3, 5.2, 0)), True)  # axis
sketch18.addConstraint(Sketcher.Constraint("Coincident", 0, 2, 1, 2))
sketch18.addConstraint(Sketcher.Constraint("Coincident", 1, 1, 2, 2))
sketch18.addConstraint(Sketcher.Constraint("Coincident", 2, 1, 0, 1))
sketch18.addConstraint(Sketcher.Constraint("Coincident", 1, 3, -1, 1))
sketch18.addConstraint(Sketcher.Constraint("Coincident", 3, 1, -1, 1))
sketch18.addConstraint(Sketcher.Constraint("Coincident", 0, 2, 2, 3))
sketch18.addConstraint(Sketcher.Constraint("Coincident", 3, 2, 2, 3))
sketch18.addConstraint(Sketcher.Constraint("Parallel", 0, 3))
sketch18.addConstraint(Sketcher.Constraint("Radius", 1, Q("20 mm")))
sketch18.addConstraint(Sketcher.Constraint("Radius", 2, Q("3 mm")))
sketch18.addConstraint(Sketcher.Constraint("Angle", 0, Q("15 deg")))
groove17 = body.newObject("PartDesign::Groove", "Groove016")
groove17.Profile = sketch18
groove17.ReferenceAxis = (sketch18, ["Axis0"])
groove17.Angle = 360

# Sketch on an angled plane
sketch19 = body.newObject("Sketcher::SketchObject", "Sketch018")
sketch19.Placement = App.Placement(V(0, 0, 0), App.Rotation(V(-0.183012702, 0.965925826, 0.183012702), V(0.683012702, 0.258819045, -0.683012702), V(-0.707106781, 0, -0.707106781), "ZXY"))
sketch19.addGeometry(Part.LineSegment(V(0, 17, 0), V(0, 20, 0)), False)
sketch19.addGeometry(Part.ArcOfCircle(Part.Circle(V(0, 0, 0), V(0, 0, 1), 20), math.radians(90), math.radians(98.6)), False)
sketch19.addGeometry(Part.ArcOfCircle(Part.Circle(V(0, 20, 0), V(0, 0, 1), 3), math.radians(-176), math.radians(-90)), False)
sketch19.addConstraint(Sketcher.Constraint("Coincident", 0, 2, 1, 1))
sketch19.addConstraint(Sketcher.Constraint("Coincident", 1, 2, 2, 1))
sketch19.addConstraint(Sketcher.Constraint("Coincident", 2, 2, 0, 1))
sketch19.addConstraint(Sketcher.Constraint("Vertical", 0))
sketch19.addConstraint(Sketcher.Constraint("Coincident", 1, 3, -1, 1))
sketch19.addConstraint(Sketcher.Constraint("Coincident", 0, 2, 2, 3))
sketch19.addConstraint(Sketcher.Constraint("PointOnObject", 2, 3, -2))
sketch19.addConstraint(Sketcher.Constraint("Radius", 1, Q("20 mm")))
sketch19.addConstraint(Sketcher.Constraint("Radius", 2, Q("3 mm")))
groove18 = body.newObject("PartDesign::Groove", "Groove017")
groove18.Profile = sketch19
groove18.ReferenceAxis = (sketch19, ["V_Axis"])
groove18.Angle = 360

# Sketch on YZ plane
sketch20 = body.newObject("Sketcher::SketchObject", "Sketch019")
sketch20.AttachmentSupport = (doc.getObject("YZ_Plane"), [""])
sketch20.MapMode = "FlatFace"
sketch20.addGeometry(Part.LineSegment(V(4.4, -16.4, 0), V(5.2, -19.3, 0)), False)
sketch20.addGeometry(Part.ArcOfCircle(Part.Circle(V(0, 0, 0), V(0, 0, 1), 20), math.radians(-83.6), math.radians(-75)), False)
sketch20.addGeometry(Part.ArcOfCircle(Part.Circle(V(5.2, -19.3, 0), V(0, 0, 1), 3), math.radians(105), math.radians(191)), False)
sketch20.addGeometry(Part.LineSegment(V(0, 0, 0), V(5.2, -19.3, 0)), True)  # axis
sketch20.addConstraint(Sketcher.Constraint("Coincident", 0, 2, 1, 2))
sketch20.addConstraint(Sketcher.Constraint("Coincident", 1, 1, 2, 2))
sketch20.addConstraint(Sketcher.Constraint("Coincident", 2, 1, 0, 1))
sketch20.addConstraint(Sketcher.Constraint("Coincident", 1, 3, -1, 1))
sketch20.addConstraint(Sketcher.Constraint("Coincident", 3, 1, -1, 1))
sketch20.addConstraint(Sketcher.Constraint("Coincident", 0, 2, 2, 3))
sketch20.addConstraint(Sketcher.Constraint("Coincident", 3, 2, 2, 3))
sketch20.addConstraint(Sketcher.Constraint("Parallel", 0, 3))
sketch20.addConstraint(Sketcher.Constraint("Radius", 1, Q("20 mm")))
sketch20.addConstraint(Sketcher.Constraint("Radius", 2, Q("3 mm")))
sketch20.addConstraint(Sketcher.Constraint("Angle", 0, Q("-75 deg")))
groove19 = body.newObject("PartDesign::Groove", "Groove018")
groove19.Profile = sketch20
groove19.ReferenceAxis = (sketch20, ["Axis0"])
groove19.Angle = 360

# Sketch on an angled plane
sketch21 = body.newObject("Sketcher::SketchObject", "Sketch020")
sketch21.Placement = App.Placement(V(0, 0, 0), App.Rotation(V(0.183012702, 0.965925826, 0.183012702), V(-0.683012702, 0.258819045, -0.683012702), V(-0.707106781, 0, 0.707106781), "ZXY"))
sketch21.addGeometry(Part.LineSegment(V(0, 17, 0), V(0, 20, 0)), False)
sketch21.addGeometry(Part.ArcOfCircle(Part.Circle(V(0, 0, 0), V(0, 0, 1), 20), math.radians(90), math.radians(98.6)), False)
sketch21.addGeometry(Part.ArcOfCircle(Part.Circle(V(0, 20, 0), V(0, 0, 1), 3), math.radians(-176), math.radians(-90)), False)
sketch21.addConstraint(Sketcher.Constraint("Coincident", 0, 2, 1, 1))
sketch21.addConstraint(Sketcher.Constraint("Coincident", 1, 2, 2, 1))
sketch21.addConstraint(Sketcher.Constraint("Coincident", 2, 2, 0, 1))
sketch21.addConstraint(Sketcher.Constraint("Vertical", 0))
sketch21.addConstraint(Sketcher.Constraint("Coincident", 1, 3, -1, 1))
sketch21.addConstraint(Sketcher.Constraint("Coincident", 0, 2, 2, 3))
sketch21.addConstraint(Sketcher.Constraint("PointOnObject", 2, 3, -2))
sketch21.addConstraint(Sketcher.Constraint("Radius", 1, Q("20 mm")))
sketch21.addConstraint(Sketcher.Constraint("Radius", 2, Q("3 mm")))
groove20 = body.newObject("PartDesign::Groove", "Groove019")
groove20.Profile = sketch21
groove20.ReferenceAxis = (sketch21, ["V_Axis"])
groove20.Angle = 360

# Sketch on XY plane
sketch22 = body.newObject("Sketcher::SketchObject", "Sketch021")
sketch22.AttachmentSupport = (doc.getObject("XY_Plane"), [""])
sketch22.MapMode = "FlatFace"
sketch22.addGeometry(Part.LineSegment(V(-16.4, 4.4, 0), V(-19.3, 5.2, 0)), False)
sketch22.addGeometry(Part.ArcOfCircle(Part.Circle(V(0, 0, 0), V(0, 0, 1), 20), math.radians(165), math.radians(173.6)), False)
sketch22.addGeometry(Part.ArcOfCircle(Part.Circle(V(-19.3, 5.2, 0), V(0, 0, 1), 3), math.radians(-101), math.radians(-15)), False)
sketch22.addGeometry(Part.LineSegment(V(0, 0, 0), V(-19.3, 5.2, 0)), True)  # axis
sketch22.addConstraint(Sketcher.Constraint("Coincident", 0, 2, 1, 1))
sketch22.addConstraint(Sketcher.Constraint("Coincident", 1, 2, 2, 1))
sketch22.addConstraint(Sketcher.Constraint("Coincident", 2, 2, 0, 1))
sketch22.addConstraint(Sketcher.Constraint("Coincident", 1, 3, -1, 1))
sketch22.addConstraint(Sketcher.Constraint("Coincident", 3, 1, -1, 1))
sketch22.addConstraint(Sketcher.Constraint("Coincident", 0, 2, 2, 3))
sketch22.addConstraint(Sketcher.Constraint("Coincident", 3, 2, 2, 3))
sketch22.addConstraint(Sketcher.Constraint("Parallel", 0, 3))
sketch22.addConstraint(Sketcher.Constraint("Radius", 1, Q("20 mm")))
sketch22.addConstraint(Sketcher.Constraint("Radius", 2, Q("3 mm")))
sketch22.addConstraint(Sketcher.Constraint("Angle", 0, Q("165 deg")))
groove21 = body.newObject("PartDesign::Groove", "Groove020")
groove21.Profile = sketch22
groove21.ReferenceAxis = (sketch22, ["Axis0"])
groove21.Angle = 360

# Sketch on an angled plane
sketch23 = body.newObject("Sketcher::SketchObject", "Sketch022")
sketch23.Placement = App.Placement(V(0, 0, 0), App.Rotation(V(0.183012702, 0.965925826, -0.183012702), V(-0.683012702, 0.258819045, 0.683012702), V(0.707106781, 0, 0.707106781), "ZXY"))
sketch23.addGeometry(Part.LineSegment(V(0, 17, 0), V(0, 20, 0)), False)
sketch23.addGeometry(Part.ArcOfCircle(Part.Circle(V(0, 0, 0), V(0, 0, 1), 20), math.radians(90), math.radians(98.6)), False)
sketch23.addGeometry(Part.ArcOfCircle(Part.Circle(V(0, 20, 0), V(0, 0, 1), 3), math.radians(-176), math.radians(-90)), False)
sketch23.addConstraint(Sketcher.Constraint("Coincident", 0, 2, 1, 1))
sketch23.addConstraint(Sketcher.Constraint("Coincident", 1, 2, 2, 1))
sketch23.addConstraint(Sketcher.Constraint("Coincident", 2, 2, 0, 1))
sketch23.addConstraint(Sketcher.Constraint("Vertical", 0))
sketch23.addConstraint(Sketcher.Constraint("Coincident", 1, 3, -1, 1))
sketch23.addConstraint(Sketcher.Constraint("Coincident", 0, 2, 2, 3))
sketch23.addConstraint(Sketcher.Constraint("PointOnObject", 2, 3, -2))
sketch23.addConstraint(Sketcher.Constraint("Radius", 1, Q("20 mm")))
sketch23.addConstraint(Sketcher.Constraint("Radius", 2, Q("3 mm")))
groove22 = body.newObject("PartDesign::Groove", "Groove021")
groove22.Profile = sketch23
groove22.ReferenceAxis = (sketch23, ["V_Axis"])
groove22.Angle = 360
body2 = doc.addObject("PartDesign::Body", "Body001")
doc.recompute()

body2.BaseFeature = body
doc.recompute()

mirroring = doc.addObject("Part::Mirroring", "Mirroring")
mirroring.Source = body
mirroring.Base = V(0, 0, 0)
mirroring.Normal = V(0, -1, 0)
body3 = doc.addObject("PartDesign::Body", "Body002")
body3.BaseFeature = mirroring
boolean = body2.newObject("PartDesign::Boolean", "Boolean")
boolean.Type = "Fuse"
boolean.addObjects([body3])
doc.recompute()
mirroring.Visibility = False

doc.recompute()
